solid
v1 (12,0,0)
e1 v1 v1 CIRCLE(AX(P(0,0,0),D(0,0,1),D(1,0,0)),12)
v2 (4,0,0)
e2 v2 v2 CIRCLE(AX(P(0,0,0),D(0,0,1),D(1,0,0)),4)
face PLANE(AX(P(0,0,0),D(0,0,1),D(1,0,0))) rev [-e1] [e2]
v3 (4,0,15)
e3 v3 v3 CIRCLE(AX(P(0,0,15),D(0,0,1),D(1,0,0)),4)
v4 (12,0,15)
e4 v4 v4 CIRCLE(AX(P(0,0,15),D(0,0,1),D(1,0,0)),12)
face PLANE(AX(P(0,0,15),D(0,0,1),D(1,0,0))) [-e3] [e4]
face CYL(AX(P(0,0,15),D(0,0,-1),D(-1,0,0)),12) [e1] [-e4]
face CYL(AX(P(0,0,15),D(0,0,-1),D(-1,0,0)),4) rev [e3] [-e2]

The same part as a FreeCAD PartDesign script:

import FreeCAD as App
import Part
import Sketcher
Q = App.Units.Quantity

doc = App.newDocument("Part")
body = doc.addObject("PartDesign::Body", "Body")

sketch1 = doc.addObject("Sketcher::SketchObject", "Sketch")
body.addObject(sketch1)
sketch1.AttachmentSupport = (doc.XY_Plane, [""])
sketch1.MapMode = "FlatFace"
sketch1.addGeometry(Part.Circle(App.Vector(0, 0, 0), App.Vector(0, 0, 1), 12), False)
sketch1.addConstraint([
    Sketcher.Constraint("Coincident", 0, 3, -1, 1),
    Sketcher.Constraint("Diameter", 0, Q("24 mm")),
])
pad1 = doc.addObject("PartDesign::Pad", "Pad")
body.addObject(pad1)
pad1.Profile = sketch1
pad1.Length = 15

sketch2 = doc.addObject("Sketcher::SketchObject", "Sketch001")
body.addObject(sketch2)
sketch2.AttachmentSupport = (doc.XY_Plane, [""])
sketch2.MapMode = "FlatFace"
sketch2.addGeometry(Part.Circle(App.Vector(0, 0, 0), App.Vector(0, 0, 1), 4), False)
sketch2.addConstraint([
    Sketcher.Constraint("Coincident", 0, 3, -1, 1),
    Sketcher.Constraint("Diameter", 0, Q("8 mm")),
])
pocket1 = doc.addObject("PartDesign::Pocket", "Pocket")
body.addObject(pocket1)
pocket1.Profile = sketch2
pocket1.Length = 15
pocket1.Reversed = True

doc.recompute()
